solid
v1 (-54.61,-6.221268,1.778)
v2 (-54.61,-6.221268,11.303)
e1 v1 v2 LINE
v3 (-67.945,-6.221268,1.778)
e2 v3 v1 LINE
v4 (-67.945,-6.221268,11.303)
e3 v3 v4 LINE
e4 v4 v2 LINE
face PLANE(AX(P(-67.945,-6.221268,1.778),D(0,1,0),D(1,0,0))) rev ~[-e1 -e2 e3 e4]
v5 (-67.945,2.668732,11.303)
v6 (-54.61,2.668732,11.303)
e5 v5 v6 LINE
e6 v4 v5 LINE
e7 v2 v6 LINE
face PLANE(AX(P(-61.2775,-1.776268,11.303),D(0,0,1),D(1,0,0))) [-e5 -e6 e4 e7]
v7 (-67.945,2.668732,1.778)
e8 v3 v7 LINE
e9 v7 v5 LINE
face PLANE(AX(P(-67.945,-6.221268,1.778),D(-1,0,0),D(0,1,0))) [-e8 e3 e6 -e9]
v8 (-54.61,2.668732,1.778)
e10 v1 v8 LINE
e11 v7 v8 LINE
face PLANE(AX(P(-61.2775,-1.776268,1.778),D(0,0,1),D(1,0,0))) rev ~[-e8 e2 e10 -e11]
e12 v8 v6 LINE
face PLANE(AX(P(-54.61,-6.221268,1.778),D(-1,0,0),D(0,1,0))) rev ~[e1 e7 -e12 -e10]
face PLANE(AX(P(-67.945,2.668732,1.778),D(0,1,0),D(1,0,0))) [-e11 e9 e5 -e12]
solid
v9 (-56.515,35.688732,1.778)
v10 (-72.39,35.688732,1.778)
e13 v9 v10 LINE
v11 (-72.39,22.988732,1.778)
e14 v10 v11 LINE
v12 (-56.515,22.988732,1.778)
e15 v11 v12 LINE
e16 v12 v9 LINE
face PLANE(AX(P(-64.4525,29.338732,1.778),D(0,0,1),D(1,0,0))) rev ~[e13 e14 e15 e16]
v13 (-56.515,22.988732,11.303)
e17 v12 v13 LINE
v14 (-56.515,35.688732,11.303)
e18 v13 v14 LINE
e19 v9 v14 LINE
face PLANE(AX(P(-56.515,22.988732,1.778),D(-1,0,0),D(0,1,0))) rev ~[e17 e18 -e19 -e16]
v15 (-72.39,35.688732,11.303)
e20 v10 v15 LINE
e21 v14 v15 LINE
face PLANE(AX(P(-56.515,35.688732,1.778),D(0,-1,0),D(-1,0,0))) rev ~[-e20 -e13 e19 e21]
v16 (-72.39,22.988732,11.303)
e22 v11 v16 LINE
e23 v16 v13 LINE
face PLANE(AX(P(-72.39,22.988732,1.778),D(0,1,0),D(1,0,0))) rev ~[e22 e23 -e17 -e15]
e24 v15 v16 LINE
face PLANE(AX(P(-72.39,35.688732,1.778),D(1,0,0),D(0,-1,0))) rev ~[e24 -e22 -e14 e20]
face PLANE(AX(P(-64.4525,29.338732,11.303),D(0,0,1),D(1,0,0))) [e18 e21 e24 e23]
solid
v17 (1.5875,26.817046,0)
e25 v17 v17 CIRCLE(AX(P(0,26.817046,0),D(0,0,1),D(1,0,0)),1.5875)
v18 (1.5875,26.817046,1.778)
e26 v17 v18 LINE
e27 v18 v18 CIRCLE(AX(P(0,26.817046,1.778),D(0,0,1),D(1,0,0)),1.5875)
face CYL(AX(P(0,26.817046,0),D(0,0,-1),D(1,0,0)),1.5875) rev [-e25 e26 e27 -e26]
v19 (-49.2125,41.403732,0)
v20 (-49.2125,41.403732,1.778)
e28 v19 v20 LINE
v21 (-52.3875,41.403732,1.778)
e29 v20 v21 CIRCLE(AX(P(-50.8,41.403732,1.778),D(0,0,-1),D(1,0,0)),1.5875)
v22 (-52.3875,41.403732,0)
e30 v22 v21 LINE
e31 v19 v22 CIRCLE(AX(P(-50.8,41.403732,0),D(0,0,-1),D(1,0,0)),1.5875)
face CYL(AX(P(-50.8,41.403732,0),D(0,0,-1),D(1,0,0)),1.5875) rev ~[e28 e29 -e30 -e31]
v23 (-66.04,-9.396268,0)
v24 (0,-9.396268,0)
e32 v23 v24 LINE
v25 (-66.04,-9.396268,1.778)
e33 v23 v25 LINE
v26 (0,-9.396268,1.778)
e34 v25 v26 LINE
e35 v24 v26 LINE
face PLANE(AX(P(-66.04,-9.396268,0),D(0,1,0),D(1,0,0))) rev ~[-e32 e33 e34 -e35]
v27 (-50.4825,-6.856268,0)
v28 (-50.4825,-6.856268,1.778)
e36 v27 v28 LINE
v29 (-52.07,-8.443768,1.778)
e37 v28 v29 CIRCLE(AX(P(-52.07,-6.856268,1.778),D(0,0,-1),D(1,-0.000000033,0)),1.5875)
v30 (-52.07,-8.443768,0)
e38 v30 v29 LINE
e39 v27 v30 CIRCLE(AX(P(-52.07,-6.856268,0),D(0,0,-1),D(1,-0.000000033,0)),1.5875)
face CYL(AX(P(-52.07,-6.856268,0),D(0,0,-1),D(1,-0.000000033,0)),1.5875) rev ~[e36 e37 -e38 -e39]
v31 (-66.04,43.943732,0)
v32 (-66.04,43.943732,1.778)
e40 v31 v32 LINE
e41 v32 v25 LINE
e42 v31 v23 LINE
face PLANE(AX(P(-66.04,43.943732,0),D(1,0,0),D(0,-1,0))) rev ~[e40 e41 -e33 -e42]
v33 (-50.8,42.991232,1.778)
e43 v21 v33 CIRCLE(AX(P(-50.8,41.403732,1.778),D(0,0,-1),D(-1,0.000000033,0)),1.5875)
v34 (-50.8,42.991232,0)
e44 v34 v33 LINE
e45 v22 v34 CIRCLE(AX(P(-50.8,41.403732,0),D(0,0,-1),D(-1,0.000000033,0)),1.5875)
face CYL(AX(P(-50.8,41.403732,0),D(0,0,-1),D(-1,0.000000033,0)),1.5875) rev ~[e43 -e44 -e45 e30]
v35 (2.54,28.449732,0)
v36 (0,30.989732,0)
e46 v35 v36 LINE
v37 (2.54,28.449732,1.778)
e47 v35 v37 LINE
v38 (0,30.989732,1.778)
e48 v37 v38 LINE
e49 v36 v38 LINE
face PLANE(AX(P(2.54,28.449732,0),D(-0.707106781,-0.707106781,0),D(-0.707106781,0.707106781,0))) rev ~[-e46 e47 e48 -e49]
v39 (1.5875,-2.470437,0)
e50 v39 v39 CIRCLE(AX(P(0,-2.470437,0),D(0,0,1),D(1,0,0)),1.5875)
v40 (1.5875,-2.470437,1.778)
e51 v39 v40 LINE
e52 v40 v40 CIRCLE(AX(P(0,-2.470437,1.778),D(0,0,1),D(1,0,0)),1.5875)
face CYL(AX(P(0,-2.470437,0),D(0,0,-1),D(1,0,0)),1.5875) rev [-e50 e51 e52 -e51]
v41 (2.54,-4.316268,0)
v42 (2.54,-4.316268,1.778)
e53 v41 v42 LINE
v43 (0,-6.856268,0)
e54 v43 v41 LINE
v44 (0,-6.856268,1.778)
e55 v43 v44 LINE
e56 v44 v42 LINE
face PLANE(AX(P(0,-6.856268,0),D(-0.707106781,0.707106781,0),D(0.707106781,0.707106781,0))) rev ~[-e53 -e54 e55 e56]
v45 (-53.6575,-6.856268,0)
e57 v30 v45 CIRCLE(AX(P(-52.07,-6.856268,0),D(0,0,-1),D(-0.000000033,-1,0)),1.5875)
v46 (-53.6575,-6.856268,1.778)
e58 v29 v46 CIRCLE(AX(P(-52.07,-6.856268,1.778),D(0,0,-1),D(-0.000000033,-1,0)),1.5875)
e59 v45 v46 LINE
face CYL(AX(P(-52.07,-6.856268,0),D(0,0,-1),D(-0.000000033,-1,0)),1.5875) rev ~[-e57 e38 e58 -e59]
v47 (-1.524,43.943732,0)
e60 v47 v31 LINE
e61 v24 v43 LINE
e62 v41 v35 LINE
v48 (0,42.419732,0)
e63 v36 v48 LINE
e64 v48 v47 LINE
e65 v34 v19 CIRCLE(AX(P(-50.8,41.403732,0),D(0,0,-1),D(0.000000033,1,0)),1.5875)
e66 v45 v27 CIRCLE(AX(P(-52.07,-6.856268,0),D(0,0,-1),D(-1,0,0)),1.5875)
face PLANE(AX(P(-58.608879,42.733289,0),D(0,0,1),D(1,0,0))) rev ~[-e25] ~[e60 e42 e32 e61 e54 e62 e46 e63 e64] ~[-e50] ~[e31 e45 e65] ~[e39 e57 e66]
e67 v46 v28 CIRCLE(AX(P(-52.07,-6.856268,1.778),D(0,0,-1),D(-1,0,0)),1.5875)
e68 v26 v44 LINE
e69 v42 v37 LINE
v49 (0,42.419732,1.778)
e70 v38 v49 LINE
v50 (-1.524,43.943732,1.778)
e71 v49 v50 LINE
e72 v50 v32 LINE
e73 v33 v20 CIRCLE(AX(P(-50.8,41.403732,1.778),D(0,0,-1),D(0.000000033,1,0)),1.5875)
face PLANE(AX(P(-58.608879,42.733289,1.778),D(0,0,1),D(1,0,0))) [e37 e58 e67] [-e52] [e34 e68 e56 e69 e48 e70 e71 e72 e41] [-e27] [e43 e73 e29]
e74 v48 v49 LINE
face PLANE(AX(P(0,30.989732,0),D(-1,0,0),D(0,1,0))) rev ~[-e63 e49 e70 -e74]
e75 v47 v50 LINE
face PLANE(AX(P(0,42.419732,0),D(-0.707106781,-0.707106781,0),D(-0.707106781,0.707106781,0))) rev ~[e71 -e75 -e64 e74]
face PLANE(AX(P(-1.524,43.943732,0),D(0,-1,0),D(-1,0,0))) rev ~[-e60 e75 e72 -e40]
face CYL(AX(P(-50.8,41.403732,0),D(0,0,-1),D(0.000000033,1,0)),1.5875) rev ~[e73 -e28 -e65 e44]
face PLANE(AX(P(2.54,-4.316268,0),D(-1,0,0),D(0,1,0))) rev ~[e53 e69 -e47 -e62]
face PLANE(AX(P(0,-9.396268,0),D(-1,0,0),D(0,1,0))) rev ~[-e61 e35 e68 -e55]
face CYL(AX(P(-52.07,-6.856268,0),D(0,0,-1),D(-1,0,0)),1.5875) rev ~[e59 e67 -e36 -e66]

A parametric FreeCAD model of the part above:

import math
import FreeCAD as App
import Part
import Sketcher
from FreeCAD import Vector
Q = App.Units.Quantity


def add_polygon(sketch, points):
    """Adds a closed chain of lines whose ends are joined by coincident constraints."""
    first, n = sketch.GeometryCount, len(points)
    for a, b in zip(points, points[1:] + points[:1]):
        sketch.addGeometry(Part.LineSegment(App.Vector(*a, 0), App.Vector(*b, 0)), False)
    for i in range(n):
        sketch.addConstraint(Sketcher.Constraint("Coincident", first + i, 2, first + (i + 1) % n, 1))

doc = App.newDocument("Part")
params = doc.addObject("Spreadsheet::Sheet", "Params")
for row, (alias, value) in enumerate([
    ("sketch1_diameter", "0.125 in"),
    ("sketch1_width", "2.6 in"),
    ("sketch1_height", "2.1 in"),
    ("sketch1_height2", "0.1 in"),
    ("sketch1_width2", "2.54 in"),
    ("pad1_length", "0.07 in"),
    ("sketch2_height", "0.5 in"),
    ("sketch2_height2", "0.35 in"),
    ("sketch2_width", "0.525 in"),
    ("sketch2_width2", "0.625 in"),
    ("pad2_length", "0.375 in"),
], start=1):
    params.set(f"A{row}", alias)
    params.set(f"B{row}", "=" + value)
    params.setAlias(f"B{row}", alias)

body = doc.addObject("PartDesign::Body", "Body")

# Sketch on XY plane
sketch1 = body.newObject("Sketcher::SketchObject", "Sketch")
sketch1.AttachmentSupport = (doc.getObject("XY_Plane"), [""])
sketch1.MapMode = "FlatFace"
add_polygon(sketch1, [(-66, 43.9), (-66, -9.4), (0, -9.4), (0, -6.9), (2.5, -4.3), (2.5, 28.4), (0, 31), (0, 42.4), (-1.5, 43.9)])  # lines 0-8
sketch1.addGeometry(Part.ArcOfCircle(Part.Circle(Vector(-52.1, -6.9, 0), Vector(0, 0, 1), 1.6), math.radians(0), math.radians(180)), False)  # 9
sketch1.addGeometry(Part.ArcOfCircle(Part.Circle(Vector(-52.1, -6.9, 0), Vector(0, 0, 1), 1.6), math.radians(-90), math.radians(0)), False)  # 10
sketch1.addGeometry(Part.ArcOfCircle(Part.Circle(Vector(-52.1, -6.9, 0), Vector(0, 0, 1), 1.6), math.radians(-180), math.radians(-90)), False)  # 11
sketch1.addGeometry(Part.Circle(Vector(0, -2.5, 0), Vector(0, 0, 1), 1.6), False)  # 12
sketch1.addGeometry(Part.ArcOfCircle(Part.Circle(Vector(-50.8, 41.4, 0), Vector(0, 0, 1), 1.6), math.radians(90), math.radians(180)), False)  # 13
sketch1.addGeometry(Part.ArcOfCircle(Part.Circle(Vector(-50.8, 41.4, 0), Vector(0, 0, 1), 1.6), math.radians(0), math.radians(90)), False)  # 14
sketch1.addGeometry(Part.ArcOfCircle(Part.Circle(Vector(-50.8, 41.4, 0), Vector(0, 0, 1), 1.6), math.radians(180), math.radians(360)), False)  # 15
sketch1.addGeometry(Part.Circle(Vector(0, 26.8, 0), Vector(0, 0, 1), 1.6), False)  # 16
sketch1.addConstraint([
    Sketcher.Constraint("Tangent", 9, 1, 10, 2),
    Sketcher.Constraint("Tangent", 10, 1, 11, 2),
    Sketcher.Constraint("Tangent", 11, 1, 9, 2),
    Sketcher.Constraint("Tangent", 13, 1, 14, 2),
    Sketcher.Constraint("Tangent", 14, 1, 15, 2),
    Sketcher.Constraint("Tangent", 15, 1, 13, 2),
    Sketcher.Constraint("Vertical", 0),
    Sketcher.Constraint("Horizontal", 1),
    Sketcher.Constraint("Vertical", 2),
    Sketcher.Constraint("Vertical", 4),
    Sketcher.Constraint("Vertical", 6),
    Sketcher.Constraint("Horizontal", 8),
    Sketcher.Constraint("Equal", 11, 12),
    Sketcher.Constraint("Equal", 12, 13),
    Sketcher.Constraint("Equal", 15, 16),
    Sketcher.Constraint("PointOnObject", 12, 3, -2),
    Sketcher.Constraint("PointOnObject", 16, 3, -2),
    Sketcher.Constraint("PointOnObject", 1, 2, -2),
    Sketcher.Constraint("PointOnObject", 5, 2, -2),
    Sketcher.Constraint("Perpendicular", 3, 5),
    Sketcher.Constraint("Parallel", 5, 7),
    Sketcher.Constraint("Horizontal", 11, 3, 2, 2),
    Sketcher.Constraint("Horizontal", 2, 2, 9, 1),
    Sketcher.Constraint("Horizontal", 9, 1, 11, 1),
    Sketcher.Constraint("Horizontal", 15, 3, 14, 1),
    Sketcher.Constraint("Horizontal", 14, 1, 15, 1),
    Sketcher.Constraint("Vertical", 11, 3, 10, 1),
    Sketcher.Constraint("Vertical", 15, 3, 13, 1),
    Sketcher.Constraint("Equal", 3, 5),
    Sketcher.Constraint("Diameter", 12, Q("0.125 in")),
    Sketcher.Constraint("DistanceX", 1, 1, 1, 2, Q("2.6 in")),
    Sketcher.Constraint("DistanceY", 0, 2, 0, 1, Q("2.1 in")),
    Sketcher.Constraint("DistanceY", 2, 1, 2, 2, Q("0.1 in")),
    Sketcher.Constraint("DistanceX", 13, 3, -1, 1, Q("2 in")),
    Sketcher.Constraint("DistanceY", 0, 2, 14, 3, Q("2 in")),
    Sketcher.Constraint("DistanceX", 8, 2, 8, 1, Q("2.54 in")),
    Sketcher.Constraint("DistanceY", 4, 1, 4, 2, Q("1.29 in")),
    Sketcher.Constraint("DistanceY", 6, 1, 6, 2, Q("0.45 in")),
    Sketcher.Constraint("DistanceX", 9, 3, -1, 1, Q("2.05 in")),
    Sketcher.Constraint("DistanceY", -1, 1, 13, 3, Q("41.403732 mm")),
    Sketcher.Constraint("DistanceY", 11, 3, 12, 3, Q("4.385831 mm")),
    Sketcher.Constraint("DistanceY", -1, 1, 16, 3, Q("26.817046 mm")),
])
sketch1.setExpression("Constraints[38]", "Params.sketch1_diameter")
sketch1.setExpression("Constraints[39]", "Params.sketch1_width")
sketch1.setExpression("Constraints[40]", "Params.sketch1_height")
sketch1.setExpression("Constraints[41]", "Params.sketch1_height2")
sketch1.setExpression("Constraints[44]", "Params.sketch1_width2")
pad1 = body.newObject("PartDesign::Pad", "Pad")
pad1.Profile = sketch1
pad1.setExpression("Length", "Params.pad1_length")
body2 = doc.addObject("PartDesign::Body", "Body001")
body2.AllowCompound = True

# Sketch on XY plane
sketch2 = body2.newObject("Sketcher::SketchObject", "Sketch001")
sketch2.AttachmentSupport = (doc.getObject("XY_Plane001"), [""])
sketch2.MapMode = "FlatFace"
sketch2.AttachmentOffset = App.Placement(Vector(0, 0, 0.07 * 25.4), App.Rotation())
add_polygon(sketch2, [(-68, 3), (-68, -6), (-55, -6), (-55, 3)])  # lines 0-3
add_polygon(sketch2, [(-72, 23), (-57, 23), (-57, 36), (-72, 36)])  # lines 4-7
sketch2.addConstraint([
    Sketcher.Constraint("Vertical", 0),
    Sketcher.Constraint("Horizontal", 1),
    Sketcher.Constraint("Vertical", 2),
    Sketcher.Constraint("Horizontal", 3),
    Sketcher.Constraint("Horizontal", 4),
    Sketcher.Constraint("Vertical", 5),
    Sketcher.Constraint("Horizontal", 6),
    Sketcher.Constraint("Vertical", 7),
    Sketcher.Constraint("DistanceY", 5, 1, 5, 2, Q("0.5 in")),
    Sketcher.Constraint("DistanceY", 0, 2, 0, 1, Q("0.35 in")),
    Sketcher.Constraint("DistanceY", 2, 2, 4, 2, Q("0.8 in")),
    Sketcher.Constraint("DistanceX", 6, 2, 2, 2, Q("0.7 in")),
    Sketcher.Constraint("DistanceX", 1, 1, 1, 2, Q("0.525 in")),
    Sketcher.Constraint("DistanceX", 4, 1, 4, 2, Q("0.625 in")),
    Sketcher.Constraint("DistanceX", 1, 2, -1, 1, Q("2.15 in")),
    Sketcher.Constraint("DistanceY", 0, 2, -1, 1, Q("6.221268 mm")),
])
sketch2.setExpression("Constraints[16]", "Params.sketch2_height")
sketch2.setExpression("Constraints[17]", "Params.sketch2_height2")
sketch2.setExpression("Constraints[20]", "Params.sketch2_width")
sketch2.setExpression("Constraints[21]", "Params.sketch2_width2")
pad2 = body2.newObject("PartDesign::Pad", "Pad001")
pad2.Profile = sketch2
pad2.setExpression("Length", "Params.pad2_length")

doc.recompute()
